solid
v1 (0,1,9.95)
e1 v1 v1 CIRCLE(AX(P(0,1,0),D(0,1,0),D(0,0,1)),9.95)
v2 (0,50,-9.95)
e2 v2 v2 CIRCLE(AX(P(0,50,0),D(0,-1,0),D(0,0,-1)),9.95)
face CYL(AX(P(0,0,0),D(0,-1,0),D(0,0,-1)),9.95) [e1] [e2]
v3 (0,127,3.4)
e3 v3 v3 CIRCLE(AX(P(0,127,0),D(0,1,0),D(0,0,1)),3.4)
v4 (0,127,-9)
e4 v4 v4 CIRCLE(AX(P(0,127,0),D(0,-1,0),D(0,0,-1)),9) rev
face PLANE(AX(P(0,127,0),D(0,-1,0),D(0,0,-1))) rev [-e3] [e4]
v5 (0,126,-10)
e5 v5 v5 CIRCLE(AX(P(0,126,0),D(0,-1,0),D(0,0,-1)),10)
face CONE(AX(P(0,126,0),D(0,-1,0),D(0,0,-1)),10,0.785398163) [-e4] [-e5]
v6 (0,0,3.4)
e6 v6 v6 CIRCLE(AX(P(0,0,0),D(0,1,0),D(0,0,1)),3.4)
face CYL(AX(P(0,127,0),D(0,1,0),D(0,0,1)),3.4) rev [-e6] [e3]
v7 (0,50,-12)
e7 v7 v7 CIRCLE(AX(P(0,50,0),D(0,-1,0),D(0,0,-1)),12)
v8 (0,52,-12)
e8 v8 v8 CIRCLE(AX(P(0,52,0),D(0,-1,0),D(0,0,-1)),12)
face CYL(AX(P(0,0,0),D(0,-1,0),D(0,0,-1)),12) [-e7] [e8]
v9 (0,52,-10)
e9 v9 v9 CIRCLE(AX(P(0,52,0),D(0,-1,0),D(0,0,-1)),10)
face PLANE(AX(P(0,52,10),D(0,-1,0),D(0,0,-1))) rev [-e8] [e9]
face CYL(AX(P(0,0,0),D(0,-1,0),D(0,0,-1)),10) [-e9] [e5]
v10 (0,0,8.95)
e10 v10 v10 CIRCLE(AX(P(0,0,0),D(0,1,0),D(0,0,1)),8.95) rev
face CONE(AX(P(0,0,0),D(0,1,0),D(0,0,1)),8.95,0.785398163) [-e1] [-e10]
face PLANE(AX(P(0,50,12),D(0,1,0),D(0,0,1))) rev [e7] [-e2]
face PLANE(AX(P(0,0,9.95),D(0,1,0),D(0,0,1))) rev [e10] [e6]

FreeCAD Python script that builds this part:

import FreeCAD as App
import Part
import Sketcher


def edges_at(feature, points):
    """Names of the edges that pass closest to the given points."""
    edges = feature.Shape.Edges
    near = lambda p: min(range(len(edges)), key=lambda i: edges[i].distToShape(Part.Vertex(*p))[0])
    return sorted({f"Edge{near(p) + 1}" for p in points})

doc = App.newDocument("Part")
body = doc.addObject("PartDesign::Body", "Body")

# Sketch on YZ plane
sketch1 = body.newObject("Sketcher::SketchObject", "Sketch")
sketch1.AttachmentSupport = (doc.getObject("YZ_Plane"), [""])
sketch1.MapMode = "FlatFace"
sketch1.addGeometry([
    Part.LineSegment(App.Vector(0, 0, 0), App.Vector(127, 0, 0)),  # 0
    Part.LineSegment(App.Vector(127, 0, 0), App.Vector(127, 10, 0)),  # 1
    Part.LineSegment(App.Vector(127, 10, 0), App.Vector(52, 10, 0)),  # 2
    Part.LineSegment(App.Vector(52, 10, 0), App.Vector(52, 12, 0)),  # 3
    Part.LineSegment(App.Vector(52, 12, 0), App.Vector(50, 12, 0)),  # 4
    Part.LineSegment(App.Vector(50, 12, 0), App.Vector(50, 9.9, 0)),  # 5
    Part.LineSegment(App.Vector(50, 9.9, 0), App.Vector(0, 9.9, 0)),  # 6
    Part.LineSegment(App.Vector(0, 9.9, 0), App.Vector(0, 0, 0)),  # 7
], False)
sketch1.addConstraint([
    Sketcher.Constraint("Coincident", 0, 2, 1, 1),
    Sketcher.Constraint("Coincident", 1, 2, 2, 1),
    Sketcher.Constraint("Coincident", 2, 2, 3, 1),
    Sketcher.Constraint("Coincident", 3, 2, 4, 1),
    Sketcher.Constraint("Coincident", 4, 2, 5, 1),
    Sketcher.Constraint("Coincident", 5, 2, 6, 1),
    Sketcher.Constraint("Coincident", 6, 2, 7, 1),
    Sketcher.Constraint("Coincident", 7, 2, 0, 1),
    Sketcher.Constraint("Horizontal", 0),
    Sketcher.Constraint("Vertical", 1),
    Sketcher.Constraint("Horizontal", 2),
    Sketcher.Constraint("Vertical", 3),
    Sketcher.Constraint("Horizontal", 4),
    Sketcher.Constraint("Vertical", 5),
    Sketcher.Constraint("Horizontal", 6),
    Sketcher.Constraint("Vertical", 7),
    Sketcher.Constraint("Coincident", 7, 2, -1, 1),
    Sketcher.Constraint("Equal", 4, 3),
    Sketcher.Constraint("DistanceX", 0, 1, 0, 2, 127.0),
    Sketcher.Constraint("DistanceX", 2, 2, 2, 1, 75.0),
    Sketcher.Constraint("DistanceX", 4, 2, 4, 1, 2.0),
    Sketcher.Constraint("DistanceY", 1, 1, 1, 2, 10.0),
    Sketcher.Constraint("DistanceY", 5, 2, 5, 1, 2.05),
])
revolution = body.newObject("PartDesign::Revolution", "Revolution")
revolution.Profile = sketch1
revolution.ReferenceAxis = (sketch1, ["H_Axis"])
revolution.Angle = 360
doc.recompute()

chamfer = body.newObject("PartDesign::Chamfer", "Chamfer")
chamfer.Base = (revolution, edges_at(revolution, [(0, 0, -9.95), (0, 127, -10)]))
chamfer.Size = 1

# Sketch on XZ plane
sketch2 = body.newObject("Sketcher::SketchObject", "Sketch001")
sketch2.AttachmentSupport = (doc.getObject("XZ_Plane"), [""])
sketch2.MapMode = "FlatFace"
sketch2.AttachmentOffset = App.Placement(App.Vector(0, 0, -127), App.Rotation())
sketch2.addGeometry(Part.Circle(App.Vector(0, 0, 0), App.Vector(0, 0, 1), 3.4), False)
sketch2.addConstraint([
    Sketcher.Constraint("Coincident", 0, 3, -1, 1),
    Sketcher.Constraint("Diameter", 0, 6.8),
])
doc.recompute()
hole = body.newObject("PartDesign::Hole", "Hole")
hole.Profile = sketch2
hole.ThreadType = "None"
hole.Diameter = 6.8
hole.DepthType = "ThroughAll"
hole.Reversed = True

doc.recompute()
